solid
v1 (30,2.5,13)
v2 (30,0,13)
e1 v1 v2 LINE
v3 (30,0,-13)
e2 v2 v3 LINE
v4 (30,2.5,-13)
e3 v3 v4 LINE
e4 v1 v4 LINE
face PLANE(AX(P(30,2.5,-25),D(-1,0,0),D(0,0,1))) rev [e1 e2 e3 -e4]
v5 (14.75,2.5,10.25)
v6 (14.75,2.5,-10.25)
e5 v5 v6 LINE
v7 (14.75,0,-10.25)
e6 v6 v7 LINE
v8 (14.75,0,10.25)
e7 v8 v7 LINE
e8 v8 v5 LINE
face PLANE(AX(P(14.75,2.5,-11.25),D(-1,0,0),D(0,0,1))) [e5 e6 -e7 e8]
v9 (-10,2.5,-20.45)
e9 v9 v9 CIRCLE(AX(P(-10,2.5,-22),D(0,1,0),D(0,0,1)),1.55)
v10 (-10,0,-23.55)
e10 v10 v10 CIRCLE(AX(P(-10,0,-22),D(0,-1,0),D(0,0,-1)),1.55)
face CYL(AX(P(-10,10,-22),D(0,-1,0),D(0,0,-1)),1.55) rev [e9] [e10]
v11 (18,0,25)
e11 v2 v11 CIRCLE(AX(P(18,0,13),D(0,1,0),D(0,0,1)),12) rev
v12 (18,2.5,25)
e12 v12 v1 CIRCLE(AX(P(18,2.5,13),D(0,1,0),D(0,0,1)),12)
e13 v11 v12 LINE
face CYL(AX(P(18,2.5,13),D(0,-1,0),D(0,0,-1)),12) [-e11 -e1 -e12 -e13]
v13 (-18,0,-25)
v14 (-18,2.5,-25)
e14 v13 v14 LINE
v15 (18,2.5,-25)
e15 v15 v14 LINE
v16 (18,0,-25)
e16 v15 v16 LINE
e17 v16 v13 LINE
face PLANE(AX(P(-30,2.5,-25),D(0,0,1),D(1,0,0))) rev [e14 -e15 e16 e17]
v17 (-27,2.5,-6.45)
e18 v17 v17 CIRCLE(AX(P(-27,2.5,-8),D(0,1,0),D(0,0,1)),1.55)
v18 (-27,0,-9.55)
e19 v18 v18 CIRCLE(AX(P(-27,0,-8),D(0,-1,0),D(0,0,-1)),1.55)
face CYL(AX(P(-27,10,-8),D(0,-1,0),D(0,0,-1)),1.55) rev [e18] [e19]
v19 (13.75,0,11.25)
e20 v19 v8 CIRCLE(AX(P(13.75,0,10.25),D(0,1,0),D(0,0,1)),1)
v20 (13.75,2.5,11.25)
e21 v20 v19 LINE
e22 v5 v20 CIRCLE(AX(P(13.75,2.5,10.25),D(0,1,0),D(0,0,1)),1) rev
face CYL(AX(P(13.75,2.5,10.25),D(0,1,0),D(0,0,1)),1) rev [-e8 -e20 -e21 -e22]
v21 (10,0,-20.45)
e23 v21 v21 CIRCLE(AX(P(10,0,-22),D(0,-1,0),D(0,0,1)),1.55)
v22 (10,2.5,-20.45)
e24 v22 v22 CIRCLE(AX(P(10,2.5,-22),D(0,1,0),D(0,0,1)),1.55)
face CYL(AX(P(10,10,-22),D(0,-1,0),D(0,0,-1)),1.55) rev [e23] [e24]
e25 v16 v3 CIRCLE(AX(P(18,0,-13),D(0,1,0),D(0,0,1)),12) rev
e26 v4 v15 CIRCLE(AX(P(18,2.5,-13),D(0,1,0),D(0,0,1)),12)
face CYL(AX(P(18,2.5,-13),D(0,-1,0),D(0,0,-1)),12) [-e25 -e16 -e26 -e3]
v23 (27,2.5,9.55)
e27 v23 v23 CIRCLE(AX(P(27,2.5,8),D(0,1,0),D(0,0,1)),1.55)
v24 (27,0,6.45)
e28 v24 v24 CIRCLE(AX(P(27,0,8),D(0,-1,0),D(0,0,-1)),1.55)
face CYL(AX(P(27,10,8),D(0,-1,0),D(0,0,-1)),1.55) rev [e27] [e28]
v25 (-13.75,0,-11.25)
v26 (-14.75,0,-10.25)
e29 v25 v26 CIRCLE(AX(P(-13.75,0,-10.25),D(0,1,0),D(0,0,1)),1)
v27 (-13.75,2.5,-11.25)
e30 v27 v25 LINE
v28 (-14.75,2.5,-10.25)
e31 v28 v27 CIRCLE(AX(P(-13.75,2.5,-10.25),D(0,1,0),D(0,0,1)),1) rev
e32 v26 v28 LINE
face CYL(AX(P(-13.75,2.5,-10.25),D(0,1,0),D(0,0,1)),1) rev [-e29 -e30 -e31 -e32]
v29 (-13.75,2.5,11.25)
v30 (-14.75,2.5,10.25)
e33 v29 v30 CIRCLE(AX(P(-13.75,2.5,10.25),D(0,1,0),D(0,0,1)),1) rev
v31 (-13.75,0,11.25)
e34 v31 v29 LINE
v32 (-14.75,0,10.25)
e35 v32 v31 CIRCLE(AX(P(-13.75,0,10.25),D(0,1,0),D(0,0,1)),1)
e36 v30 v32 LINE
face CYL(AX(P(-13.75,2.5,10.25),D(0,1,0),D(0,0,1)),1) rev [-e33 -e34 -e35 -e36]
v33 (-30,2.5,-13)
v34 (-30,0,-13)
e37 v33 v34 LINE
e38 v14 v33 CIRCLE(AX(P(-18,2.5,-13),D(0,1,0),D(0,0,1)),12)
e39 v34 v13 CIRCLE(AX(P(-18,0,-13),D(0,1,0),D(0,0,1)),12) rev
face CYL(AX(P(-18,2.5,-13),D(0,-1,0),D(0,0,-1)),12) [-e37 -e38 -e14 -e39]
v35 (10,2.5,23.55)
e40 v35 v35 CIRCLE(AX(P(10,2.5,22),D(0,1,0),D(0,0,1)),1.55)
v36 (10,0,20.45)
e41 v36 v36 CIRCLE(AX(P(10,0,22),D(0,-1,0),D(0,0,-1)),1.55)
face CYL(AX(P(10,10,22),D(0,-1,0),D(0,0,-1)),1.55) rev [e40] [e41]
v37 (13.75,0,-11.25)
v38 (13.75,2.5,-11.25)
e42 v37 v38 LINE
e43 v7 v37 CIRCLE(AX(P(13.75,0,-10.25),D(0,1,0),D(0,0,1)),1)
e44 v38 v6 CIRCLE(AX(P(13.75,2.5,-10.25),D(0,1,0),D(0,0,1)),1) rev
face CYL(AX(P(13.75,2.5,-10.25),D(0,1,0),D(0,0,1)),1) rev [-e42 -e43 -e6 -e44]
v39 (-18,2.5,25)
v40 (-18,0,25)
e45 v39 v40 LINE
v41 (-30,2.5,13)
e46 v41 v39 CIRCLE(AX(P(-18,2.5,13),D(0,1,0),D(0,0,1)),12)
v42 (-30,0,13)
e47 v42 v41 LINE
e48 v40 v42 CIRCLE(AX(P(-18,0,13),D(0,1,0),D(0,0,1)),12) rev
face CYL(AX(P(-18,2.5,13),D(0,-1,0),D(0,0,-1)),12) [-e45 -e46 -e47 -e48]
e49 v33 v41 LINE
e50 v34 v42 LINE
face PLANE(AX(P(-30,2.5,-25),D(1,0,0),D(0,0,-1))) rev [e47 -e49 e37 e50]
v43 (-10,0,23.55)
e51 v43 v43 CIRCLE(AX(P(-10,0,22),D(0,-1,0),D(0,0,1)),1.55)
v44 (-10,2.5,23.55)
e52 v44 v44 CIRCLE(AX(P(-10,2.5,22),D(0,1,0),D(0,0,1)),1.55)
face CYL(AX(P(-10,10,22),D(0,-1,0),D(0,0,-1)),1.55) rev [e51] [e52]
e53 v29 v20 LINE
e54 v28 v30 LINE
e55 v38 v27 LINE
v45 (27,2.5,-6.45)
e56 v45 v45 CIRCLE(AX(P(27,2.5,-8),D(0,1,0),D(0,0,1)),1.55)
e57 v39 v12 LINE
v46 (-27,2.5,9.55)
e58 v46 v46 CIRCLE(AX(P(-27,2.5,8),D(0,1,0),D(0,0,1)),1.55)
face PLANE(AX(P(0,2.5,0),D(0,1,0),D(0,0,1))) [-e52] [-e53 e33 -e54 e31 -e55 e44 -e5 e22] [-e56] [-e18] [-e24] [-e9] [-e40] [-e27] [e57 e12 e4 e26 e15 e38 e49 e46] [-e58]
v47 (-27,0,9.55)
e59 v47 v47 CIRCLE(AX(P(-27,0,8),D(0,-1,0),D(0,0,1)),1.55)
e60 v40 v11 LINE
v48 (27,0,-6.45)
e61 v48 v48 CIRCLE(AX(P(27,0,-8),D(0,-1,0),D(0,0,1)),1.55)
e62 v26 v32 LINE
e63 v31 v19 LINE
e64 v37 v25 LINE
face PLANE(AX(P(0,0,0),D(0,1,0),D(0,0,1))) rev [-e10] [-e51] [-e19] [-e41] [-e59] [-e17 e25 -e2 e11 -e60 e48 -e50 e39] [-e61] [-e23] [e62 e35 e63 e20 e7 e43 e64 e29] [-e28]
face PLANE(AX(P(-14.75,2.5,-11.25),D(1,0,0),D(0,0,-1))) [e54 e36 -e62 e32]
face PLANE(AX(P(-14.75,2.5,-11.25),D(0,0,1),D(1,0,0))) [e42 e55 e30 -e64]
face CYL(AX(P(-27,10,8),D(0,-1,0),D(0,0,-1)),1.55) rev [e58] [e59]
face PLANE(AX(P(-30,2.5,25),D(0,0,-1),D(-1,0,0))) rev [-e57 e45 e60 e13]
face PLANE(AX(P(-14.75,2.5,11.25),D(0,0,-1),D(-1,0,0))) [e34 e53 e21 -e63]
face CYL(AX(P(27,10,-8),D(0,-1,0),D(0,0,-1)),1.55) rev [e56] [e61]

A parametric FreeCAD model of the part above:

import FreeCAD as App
import Part
import Sketcher
from FreeCAD import Vector
Q = App.Units.Quantity


def edges_at(feature, points):
    """Names of the edges that pass closest to the given points."""
    edges = feature.Shape.Edges
    near = lambda p: min(range(len(edges)), key=lambda i: edges[i].distToShape(Part.Vertex(*p))[0])
    return sorted({f"Edge{near(p) + 1}" for p in points})


def add_polygon(sketch, points):
    """Adds a closed chain of lines whose ends are joined by coincident constraints."""
    first, n = sketch.GeometryCount, len(points)
    for a, b in zip(points, points[1:] + points[:1]):
        sketch.addGeometry(Part.LineSegment(App.Vector(*a, 0), App.Vector(*b, 0)), False)
    for i in range(n):
        sketch.addConstraint(Sketcher.Constraint("Coincident", first + i, 2, first + (i + 1) % n, 1))

doc = App.newDocument("Part")
params = doc.addObject("Spreadsheet::Sheet", "Params")
for row, (alias, value) in enumerate([
    ("sketch1_width", "60 mm"),
    ("sketch1_height", "50 mm"),
    ("sketch1_width2", "29.5 mm"),
    ("sketch1_height2", "22.5 mm"),
    ("pad1_length", "2.5 mm"),
    ("sketch2_diameter", "3.1 mm"),
    ("pocket1_length", "10 mm"),
    ("fillet_radius", "1 mm"),
    ("fillet2_radius", "12 mm"),
], start=1):
    params.set(f"A{row}", alias)
    params.set(f"B{row}", "=" + value)
    params.setAlias(f"B{row}", alias)

body = doc.addObject("PartDesign::Body", "Body")

sketch1 = doc.addObject("Sketcher::SketchObject", "Sketch")
body.addObject(sketch1)
sketch1.AttachmentSupport = (doc.XZ_Plane, [""])
sketch1.MapMode = "FlatFace"
add_polygon(sketch1, [(-30, -25), (-30, 25), (30, 25), (30, -25)])
add_polygon(sketch1, [(15, 11), (-15, 11), (-15, -11), (15, -11)])
sketch1.addConstraint([
    Sketcher.Constraint("Vertical", 0),
    Sketcher.Constraint("Horizontal", 1),
    Sketcher.Constraint("Vertical", 2),
    Sketcher.Constraint("Horizontal", 3),
    Sketcher.Constraint("Horizontal", 4),
    Sketcher.Constraint("Vertical", 5),
    Sketcher.Constraint("Horizontal", 6),
    Sketcher.Constraint("Vertical", 7),
    Sketcher.Constraint("Symmetric", 0, 2, 2, 2, -1, 1),
    Sketcher.Constraint("Symmetric", 4, 2, 6, 2, -1, 1),
    Sketcher.Constraint("DistanceX", 1, 1, 1, 2, Q("60 mm")),
    Sketcher.Constraint("DistanceY", 0, 1, 0, 2, Q("50 mm")),
    Sketcher.Constraint("DistanceX", 4, 2, 4, 1, Q("29.5 mm")),
    Sketcher.Constraint("DistanceY", 5, 2, 5, 1, Q("22.5 mm")),
])
sketch1.setExpression("Constraints[18]", "Params.sketch1_width")
sketch1.setExpression("Constraints[19]", "Params.sketch1_height")
sketch1.setExpression("Constraints[20]", "Params.sketch1_width2")
sketch1.setExpression("Constraints[21]", "Params.sketch1_height2")
pad1 = doc.addObject("PartDesign::Pad", "Pad")
body.addObject(pad1)
pad1.Profile = sketch1
pad1.setExpression("Length", "Params.pad1_length")
pad1.Reversed = True

sketch2 = doc.addObject("Sketcher::SketchObject", "Sketch001")
body.addObject(sketch2)
sketch2.AttachmentSupport = (doc.XZ_Plane, [""])
sketch2.MapMode = "FlatFace"
sketch2.addGeometry([
    Part.Circle(Vector(27, 8, 0), Vector(0, 0, 1), 1.6),
    Part.Circle(Vector(10, 22, 0), Vector(0, 0, 1), 1.6),
    Part.Circle(Vector(-10, 22, 0), Vector(0, 0, 1), 1.6),
    Part.Circle(Vector(-27, 8, 0), Vector(0, 0, 1), 1.6),
    Part.Circle(Vector(-27, -8, 0), Vector(0, 0, 1), 1.6),
    Part.Circle(Vector(-10, -22, 0), Vector(0, 0, 1), 1.6),
    Part.Circle(Vector(10, -22, 0), Vector(0, 0, 1), 1.6),
    Part.Circle(Vector(27, -8, 0), Vector(0, 0, 1), 1.6),
], False)
sketch2.addConstraint([
    Sketcher.Constraint("Equal", 0, 1),
    Sketcher.Constraint("Equal", 1, 2),
    Sketcher.Constraint("Equal", 2, 3),
    Sketcher.Constraint("Equal", 3, 4),
    Sketcher.Constraint("Equal", 4, 5),
    Sketcher.Constraint("Equal", 5, 6),
    Sketcher.Constraint("Equal", 6, 7),
    Sketcher.Constraint("Symmetric", 0, 3, 4, 3, -1, 1),
    Sketcher.Constraint("Symmetric", 1, 3, 5, 3, -1, 1),
    Sketcher.Constraint("Symmetric", 2, 3, 6, 3, -1, 1),
    Sketcher.Constraint("Symmetric", 3, 3, 7, 3, -1, 1),
    Sketcher.Constraint("Symmetric", 1, 3, 2, 3, -2),
    Sketcher.Constraint("Symmetric", 0, 3, 3, 3, -2),
    Sketcher.Constraint("Diameter", 0, Q("3.1 mm")),
    Sketcher.Constraint("DistanceX", -1, 1, 0, 3, Q("27 mm")),
    Sketcher.Constraint("DistanceY", -1, 1, 0, 3, Q("8 mm")),
    Sketcher.Constraint("DistanceX", -1, 1, 1, 3, Q("10 mm")),
    Sketcher.Constraint("DistanceY", -1, 1, 1, 3, Q("22 mm")),
])
sketch2.setExpression("Constraints[13]", "Params.sketch2_diameter")
pocket1 = doc.addObject("PartDesign::Pocket", "Pocket")
body.addObject(pocket1)
pocket1.Profile = sketch2
pocket1.setExpression("Length", "Params.pocket1_length")
doc.recompute()

fillet = doc.addObject("PartDesign::Fillet", "Fillet")
body.addObject(fillet)
fillet.Base = (pocket1, edges_at(pocket1, [
    (14.75, 1.25, 11.25),
    (14.75, 1.25, -11.25),
    (-14.75, 1.25, -11.25),
    (-14.75, 1.25, 11.25),
]))
fillet.setExpression("Radius", "Params.fillet_radius")
doc.recompute()

fillet2 = doc.addObject("PartDesign::Fillet", "Fillet001")
body.addObject(fillet2)
fillet2.Base = (fillet, edges_at(fillet, [
    (30, 1.25, 25),
    (-30, 1.25, 25),
    (-30, 1.25, -25),
    (30, 1.25, -25),
]))
fillet2.setExpression("Radius", "Params.fillet2_radius")

doc.recompute()
